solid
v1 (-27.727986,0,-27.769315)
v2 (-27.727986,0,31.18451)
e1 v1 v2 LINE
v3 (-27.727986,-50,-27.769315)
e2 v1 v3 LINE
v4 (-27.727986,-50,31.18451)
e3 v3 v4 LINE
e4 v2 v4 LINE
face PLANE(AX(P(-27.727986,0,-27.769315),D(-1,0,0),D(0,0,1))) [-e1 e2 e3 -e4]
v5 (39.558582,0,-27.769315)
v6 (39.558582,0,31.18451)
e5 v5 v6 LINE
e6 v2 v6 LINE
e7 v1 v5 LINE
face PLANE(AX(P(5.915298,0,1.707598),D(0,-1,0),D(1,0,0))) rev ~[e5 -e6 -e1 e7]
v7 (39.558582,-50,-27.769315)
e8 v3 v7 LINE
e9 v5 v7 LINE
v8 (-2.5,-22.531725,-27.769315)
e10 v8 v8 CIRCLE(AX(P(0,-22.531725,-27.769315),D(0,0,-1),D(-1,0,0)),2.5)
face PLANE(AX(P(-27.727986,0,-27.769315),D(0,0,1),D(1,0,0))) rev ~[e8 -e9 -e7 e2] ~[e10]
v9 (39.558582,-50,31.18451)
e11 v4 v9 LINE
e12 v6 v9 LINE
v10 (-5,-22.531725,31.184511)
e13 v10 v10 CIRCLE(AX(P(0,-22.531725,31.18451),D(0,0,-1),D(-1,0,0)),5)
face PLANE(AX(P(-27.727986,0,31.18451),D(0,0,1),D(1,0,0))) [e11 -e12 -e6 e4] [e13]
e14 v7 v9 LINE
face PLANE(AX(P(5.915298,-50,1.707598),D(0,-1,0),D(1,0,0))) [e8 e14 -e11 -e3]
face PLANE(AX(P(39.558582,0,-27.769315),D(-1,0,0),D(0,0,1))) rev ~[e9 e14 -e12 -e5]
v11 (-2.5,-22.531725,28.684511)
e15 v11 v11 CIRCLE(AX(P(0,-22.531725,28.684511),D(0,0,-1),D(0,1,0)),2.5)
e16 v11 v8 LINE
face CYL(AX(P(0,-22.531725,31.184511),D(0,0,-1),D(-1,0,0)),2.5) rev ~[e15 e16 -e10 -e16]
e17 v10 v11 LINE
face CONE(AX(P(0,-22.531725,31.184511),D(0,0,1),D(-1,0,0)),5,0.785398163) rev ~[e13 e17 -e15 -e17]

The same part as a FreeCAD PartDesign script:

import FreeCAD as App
import Part
import Sketcher
from FreeCAD import Vector

doc = App.newDocument("Part")
body = doc.addObject("PartDesign::Body", "Body")

# Sketch on XZ plane
sketch1 = doc.addObject("Sketcher::SketchObject", "Sketch")
body.addObject(sketch1)
sketch1.AttachmentSupport = (doc.XZ_Plane, [""])
sketch1.MapMode = "FlatFace"
sketch1.addGeometry(Part.LineSegment(Vector(-27.727986, 31.18451, 0), Vector(-27.727986, -27.769315, 0)), False)
sketch1.addGeometry(Part.LineSegment(Vector(-27.727986, -27.769315, 0), Vector(39.558582, -27.769315, 0)), False)
sketch1.addGeometry(Part.LineSegment(Vector(39.558582, -27.769315, 0), Vector(39.558582, 31.18451, 0)), False)
sketch1.addGeometry(Part.LineSegment(Vector(39.558582, 31.18451, 0), Vector(-27.727986, 31.18451, 0)), False)
sketch1.addConstraint(Sketcher.Constraint("Coincident", 0, 2, 1, 1))
sketch1.addConstraint(Sketcher.Constraint("Coincident", 1, 2, 2, 1))
sketch1.addConstraint(Sketcher.Constraint("Coincident", 2, 2, 3, 1))
sketch1.addConstraint(Sketcher.Constraint("Coincident", 3, 2, 0, 1))
sketch1.addConstraint(Sketcher.Constraint("Vertical", 0))
sketch1.addConstraint(Sketcher.Constraint("Horizontal", 1))
sketch1.addConstraint(Sketcher.Constraint("Vertical", 2))
sketch1.addConstraint(Sketcher.Constraint("Horizontal", 3))
sketch1.addConstraint(Sketcher.Constraint("DistanceX", 1, 1, 1, 2, 67.286568))
sketch1.addConstraint(Sketcher.Constraint("DistanceY", 0, 2, 0, 1, 58.953825))
sketch1.addConstraint(Sketcher.Constraint("DistanceY", -1, 1, 2, 2, 31.18451))
sketch1.addConstraint(Sketcher.Constraint("DistanceX", 0, 2, -1, 1, 27.727986))
pad1 = doc.addObject("PartDesign::Pad", "Pad")
body.addObject(pad1)
pad1.Profile = sketch1
pad1.Length = 50

# Sketch on XY plane
sketch2 = doc.addObject("Sketcher::SketchObject", "Sketch001")
body.addObject(sketch2)
sketch2.AttachmentSupport = (doc.XY_Plane, [""])
sketch2.MapMode = "FlatFace"
sketch2.AttachmentOffset = App.Placement(Vector(0, 0, 31.184511), App.Rotation())
sketch2.addGeometry(Part.Circle(Vector(0, -22.531725, 0), Vector(0, 0, 1), 2.5), False)
sketch2.addConstraint(Sketcher.Constraint("PointOnObject", 0, 3, -2))
sketch2.addConstraint(Sketcher.Constraint("Diameter", 0, 5.0))
sketch2.addConstraint(Sketcher.Constraint("DistanceY", 0, 3, -1, 1, 22.531725))
doc.recompute()
hole = doc.addObject("PartDesign::Hole", "Hole")
body.addObject(hole)
hole.Profile = sketch2
hole.ThreadType = "None"
hole.Diameter = 5
hole.DepthType = "ThroughAll"
hole.HoleCutType = "Countersink"
hole.HoleCutDiameter = 10
hole.HoleCutCountersinkAngle = 90

doc.recompute()
